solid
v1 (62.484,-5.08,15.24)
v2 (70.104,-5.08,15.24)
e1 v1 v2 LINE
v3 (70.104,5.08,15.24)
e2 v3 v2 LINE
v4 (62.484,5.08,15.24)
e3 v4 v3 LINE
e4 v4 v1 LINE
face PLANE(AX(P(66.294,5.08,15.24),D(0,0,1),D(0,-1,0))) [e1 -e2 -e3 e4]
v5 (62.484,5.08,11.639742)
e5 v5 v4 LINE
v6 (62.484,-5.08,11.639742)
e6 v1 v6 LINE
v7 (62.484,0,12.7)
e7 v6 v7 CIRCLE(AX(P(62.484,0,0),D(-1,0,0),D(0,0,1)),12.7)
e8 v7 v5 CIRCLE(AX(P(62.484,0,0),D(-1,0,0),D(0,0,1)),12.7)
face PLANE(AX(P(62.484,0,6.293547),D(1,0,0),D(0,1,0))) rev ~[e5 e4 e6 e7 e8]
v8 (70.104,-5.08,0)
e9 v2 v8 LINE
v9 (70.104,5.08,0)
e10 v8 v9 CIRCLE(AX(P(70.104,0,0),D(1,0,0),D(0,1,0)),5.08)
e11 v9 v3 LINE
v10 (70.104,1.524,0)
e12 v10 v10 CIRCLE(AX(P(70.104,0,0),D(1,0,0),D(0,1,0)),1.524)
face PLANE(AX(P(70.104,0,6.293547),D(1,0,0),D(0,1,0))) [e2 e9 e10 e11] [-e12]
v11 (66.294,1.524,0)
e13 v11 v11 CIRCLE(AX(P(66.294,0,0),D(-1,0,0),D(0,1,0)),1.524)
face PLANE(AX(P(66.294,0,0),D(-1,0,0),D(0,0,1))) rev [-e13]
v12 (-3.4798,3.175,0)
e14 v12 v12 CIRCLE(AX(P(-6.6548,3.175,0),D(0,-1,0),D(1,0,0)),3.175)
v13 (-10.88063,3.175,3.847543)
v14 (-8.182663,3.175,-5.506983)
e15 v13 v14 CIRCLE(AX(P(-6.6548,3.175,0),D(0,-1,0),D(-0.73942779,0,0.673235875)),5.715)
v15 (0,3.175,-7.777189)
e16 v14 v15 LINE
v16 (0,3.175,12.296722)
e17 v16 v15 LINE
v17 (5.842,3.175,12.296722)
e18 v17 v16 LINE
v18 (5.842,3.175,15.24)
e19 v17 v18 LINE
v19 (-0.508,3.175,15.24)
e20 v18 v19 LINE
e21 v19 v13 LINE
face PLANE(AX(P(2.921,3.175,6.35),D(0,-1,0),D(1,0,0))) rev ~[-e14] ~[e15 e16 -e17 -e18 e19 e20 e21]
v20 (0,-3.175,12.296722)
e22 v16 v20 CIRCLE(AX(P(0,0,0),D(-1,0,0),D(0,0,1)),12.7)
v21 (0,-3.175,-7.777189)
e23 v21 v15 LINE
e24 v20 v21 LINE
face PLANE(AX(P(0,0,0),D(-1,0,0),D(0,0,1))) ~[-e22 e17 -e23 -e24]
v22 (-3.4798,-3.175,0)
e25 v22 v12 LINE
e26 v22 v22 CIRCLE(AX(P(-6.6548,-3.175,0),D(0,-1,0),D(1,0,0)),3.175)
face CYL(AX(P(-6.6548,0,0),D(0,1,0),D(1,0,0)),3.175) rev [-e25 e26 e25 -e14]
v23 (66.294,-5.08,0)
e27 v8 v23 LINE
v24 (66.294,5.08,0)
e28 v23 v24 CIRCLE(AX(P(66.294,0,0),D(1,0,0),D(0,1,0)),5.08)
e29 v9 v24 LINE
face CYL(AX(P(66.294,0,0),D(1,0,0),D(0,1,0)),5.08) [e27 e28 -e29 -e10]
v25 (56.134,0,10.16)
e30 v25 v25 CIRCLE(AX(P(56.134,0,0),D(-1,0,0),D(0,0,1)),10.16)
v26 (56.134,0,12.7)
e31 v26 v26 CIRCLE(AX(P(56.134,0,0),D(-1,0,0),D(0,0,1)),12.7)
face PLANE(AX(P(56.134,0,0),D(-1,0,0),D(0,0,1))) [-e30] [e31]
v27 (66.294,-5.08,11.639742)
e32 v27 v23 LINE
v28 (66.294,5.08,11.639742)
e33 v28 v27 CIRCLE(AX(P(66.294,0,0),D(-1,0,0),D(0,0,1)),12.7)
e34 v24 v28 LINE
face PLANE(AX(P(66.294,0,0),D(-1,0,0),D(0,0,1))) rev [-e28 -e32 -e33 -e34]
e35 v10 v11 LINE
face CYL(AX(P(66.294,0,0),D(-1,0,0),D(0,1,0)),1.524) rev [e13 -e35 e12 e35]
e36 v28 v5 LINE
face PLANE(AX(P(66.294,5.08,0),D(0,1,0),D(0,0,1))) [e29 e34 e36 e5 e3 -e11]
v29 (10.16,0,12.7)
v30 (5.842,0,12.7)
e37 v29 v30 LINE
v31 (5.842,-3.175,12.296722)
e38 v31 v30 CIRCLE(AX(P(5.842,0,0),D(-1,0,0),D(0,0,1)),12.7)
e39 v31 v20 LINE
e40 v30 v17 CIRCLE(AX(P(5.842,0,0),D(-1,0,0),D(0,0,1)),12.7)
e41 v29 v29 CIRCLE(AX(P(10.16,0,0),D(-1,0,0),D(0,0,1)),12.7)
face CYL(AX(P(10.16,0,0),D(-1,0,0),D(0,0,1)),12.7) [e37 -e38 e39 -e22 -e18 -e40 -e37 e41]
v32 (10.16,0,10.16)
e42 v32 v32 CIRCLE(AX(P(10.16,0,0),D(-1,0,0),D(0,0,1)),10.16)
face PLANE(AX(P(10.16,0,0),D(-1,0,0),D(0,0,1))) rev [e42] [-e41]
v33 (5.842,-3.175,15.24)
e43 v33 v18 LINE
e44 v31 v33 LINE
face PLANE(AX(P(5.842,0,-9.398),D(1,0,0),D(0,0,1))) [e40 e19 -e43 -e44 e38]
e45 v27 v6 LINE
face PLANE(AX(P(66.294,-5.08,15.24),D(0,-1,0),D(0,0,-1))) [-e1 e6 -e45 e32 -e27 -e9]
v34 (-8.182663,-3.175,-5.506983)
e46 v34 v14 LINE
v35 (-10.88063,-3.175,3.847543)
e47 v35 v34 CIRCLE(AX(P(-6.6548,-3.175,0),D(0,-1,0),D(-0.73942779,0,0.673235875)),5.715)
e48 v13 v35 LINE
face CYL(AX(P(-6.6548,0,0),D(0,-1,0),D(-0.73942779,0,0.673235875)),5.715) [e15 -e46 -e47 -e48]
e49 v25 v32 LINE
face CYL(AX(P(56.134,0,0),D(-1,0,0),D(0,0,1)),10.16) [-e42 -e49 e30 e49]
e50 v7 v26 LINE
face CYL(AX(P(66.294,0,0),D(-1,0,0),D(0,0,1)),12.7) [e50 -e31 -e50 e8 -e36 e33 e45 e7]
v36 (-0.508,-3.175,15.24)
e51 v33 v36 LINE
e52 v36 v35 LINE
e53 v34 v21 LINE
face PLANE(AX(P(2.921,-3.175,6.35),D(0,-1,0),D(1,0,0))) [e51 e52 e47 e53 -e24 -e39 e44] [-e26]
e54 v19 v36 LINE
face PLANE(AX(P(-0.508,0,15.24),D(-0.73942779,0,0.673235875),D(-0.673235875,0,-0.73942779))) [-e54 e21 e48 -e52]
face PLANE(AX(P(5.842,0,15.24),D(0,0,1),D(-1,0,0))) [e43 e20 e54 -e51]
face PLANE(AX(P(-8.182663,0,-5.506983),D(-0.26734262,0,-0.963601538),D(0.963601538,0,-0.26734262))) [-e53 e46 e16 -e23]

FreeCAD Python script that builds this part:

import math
import FreeCAD as App
import Part
import Sketcher
Q = App.Units.Quantity

doc = App.newDocument("Part")
body = doc.addObject("PartDesign::Body", "Body")

# Sketch on XZ plane
sketch1 = body.newObject("Sketcher::SketchObject", "Sketch")
sketch1.AttachmentSupport = (doc.getObject("XZ_Plane"), [""])
sketch1.MapMode = "FlatFace"
sketch1.addGeometry(Part.LineSegment(App.Vector(66.3, 0, 0), App.Vector(66.3, 12.7, 0)), False)
sketch1.addGeometry(Part.LineSegment(App.Vector(66.3, 12.7, 0), App.Vector(56.1, 12.7, 0)), False)
sketch1.addGeometry(Part.LineSegment(App.Vector(56.1, 12.7, 0), App.Vector(56.1, 10.2, 0)), False)
sketch1.addGeometry(Part.LineSegment(App.Vector(56.1, 10.2, 0), App.Vector(10.2, 10.2, 0)), False)
sketch1.addGeometry(Part.LineSegment(App.Vector(10.2, 10.2, 0), App.Vector(10.2, 12.7, 0)), False)
sketch1.addGeometry(Part.LineSegment(App.Vector(10.2, 12.7, 0), App.Vector(0, 12.7, 0)), False)
sketch1.addGeometry(Part.LineSegment(App.Vector(0, 12.7, 0), App.Vector(0, 0, 0)), False)
sketch1.addGeometry(Part.LineSegment(App.Vector(0, 0, 0), App.Vector(66.3, 0, 0)), False)
sketch1.addConstraint(Sketcher.Constraint("Coincident", 0, 2, 1, 1))
sketch1.addConstraint(Sketcher.Constraint("Coincident", 1, 2, 2, 1))
sketch1.addConstraint(Sketcher.Constraint("Coincident", 2, 2, 3, 1))
sketch1.addConstraint(Sketcher.Constraint("Coincident", 3, 2, 4, 1))
sketch1.addConstraint(Sketcher.Constraint("Coincident", 4, 2, 5, 1))
sketch1.addConstraint(Sketcher.Constraint("Coincident", 5, 2, 6, 1))
sketch1.addConstraint(Sketcher.Constraint("Coincident", 6, 2, 7, 1))
sketch1.addConstraint(Sketcher.Constraint("Coincident", 7, 2, 0, 1))
sketch1.addConstraint(Sketcher.Constraint("Vertical", 0))
sketch1.addConstraint(Sketcher.Constraint("Horizontal", 1))
sketch1.addConstraint(Sketcher.Constraint("Vertical", 2))
sketch1.addConstraint(Sketcher.Constraint("Horizontal", 3))
sketch1.addConstraint(Sketcher.Constraint("Vertical", 4))
sketch1.addConstraint(Sketcher.Constraint("Horizontal", 5))
sketch1.addConstraint(Sketcher.Constraint("Vertical", 6))
sketch1.addConstraint(Sketcher.Constraint("Horizontal", 7))
sketch1.addConstraint(Sketcher.Constraint("Coincident", 6, 2, -1, 1))
sketch1.addConstraint(Sketcher.Constraint("Horizontal", 1, 2, 4, 2))
sketch1.addConstraint(Sketcher.Constraint("Equal", 1, 5))
sketch1.addConstraint(Sketcher.Constraint("DistanceX", 1, 2, 1, 1, Q("0.4 in")))
sketch1.addConstraint(Sketcher.Constraint("DistanceY", 0, 1, 0, 2, Q("0.5 in")))
sketch1.addConstraint(Sketcher.Constraint("DistanceY", 2, 2, 2, 1, Q("0.1 in")))
sketch1.addConstraint(Sketcher.Constraint("DistanceX", 3, 2, 3, 1, Q("1.81 in")))
revolution = body.newObject("PartDesign::Revolution", "Revolution")
revolution.Profile = sketch1
revolution.ReferenceAxis = (sketch1, ["H_Axis"])
revolution.Angle = 360

# Sketch on XZ plane
sketch2 = body.newObject("Sketcher::SketchObject", "Sketch001")
sketch2.AttachmentSupport = (doc.getObject("XZ_Plane"), [""])
sketch2.MapMode = "FlatFace"
sketch2.addGeometry(Part.LineSegment(App.Vector(5.8, 15.2, 0), App.Vector(-0.5, 15.2, 0)), False)
sketch2.addGeometry(Part.LineSegment(App.Vector(-0.5, 15.2, 0), App.Vector(-10.9, 3.8, 0)), False)
sketch2.addGeometry(Part.ArcOfCircle(Part.Circle(App.Vector(-6.7, 0, 0), App.Vector(0, 0, 1), 5.7), math.radians(138), math.radians(254)), False)
sketch2.addGeometry(Part.LineSegment(App.Vector(-8.2, -5.5, 0), App.Vector(5.8, -9.4, 0)), False)
sketch2.addGeometry(Part.LineSegment(App.Vector(5.8, -9.4, 0), App.Vector(5.8, 15.2, 0)), False)
sketch2.addGeometry(Part.Circle(App.Vector(-6.7, 0, 0), App.Vector(0, 0, 1), 3.2), False)
sketch2.addConstraint(Sketcher.Constraint("Coincident", 0, 2, 1, 1))
sketch2.addConstraint(Sketcher.Constraint("Tangent", 1, 2, 2, 1))
sketch2.addConstraint(Sketcher.Constraint("Tangent", 2, 2, 3, 1))
sketch2.addConstraint(Sketcher.Constraint("Coincident", 3, 2, 4, 1))
sketch2.addConstraint(Sketcher.Constraint("Coincident", 4, 2, 0, 1))
sketch2.addConstraint(Sketcher.Constraint("Horizontal", 0))
sketch2.addConstraint(Sketcher.Constraint("Vertical", 4))
sketch2.addConstraint(Sketcher.Constraint("Coincident", 5, 3, 2, 3))
sketch2.addConstraint(Sketcher.Constraint("PointOnObject", 2, 3, -1))
sketch2.addConstraint(Sketcher.Constraint("Diameter", 5, Q("0.25 in")))
sketch2.addConstraint(Sketcher.Constraint("Radius", 2, Q("0.225 in")))
sketch2.addConstraint(Sketcher.Constraint("DistanceX", 0, 2, 0, 1, Q("0.25 in")))
sketch2.addConstraint(Sketcher.Constraint("DistanceY", 4, 1, 4, 2, Q("0.97 in")))
sketch2.addConstraint(Sketcher.Constraint("DistanceY", -1, 1, 0, 2, Q("0.6 in")))
sketch2.addConstraint(Sketcher.Constraint("DistanceX", 0, 2, -1, 1, Q("0.02 in")))
sketch2.addConstraint(Sketcher.Constraint("DistanceX", 2, 3, -1, 1, Q("0.262 in")))
pad1 = body.newObject("PartDesign::Pad", "Pad")
pad1.Profile = sketch2
pad1.Length = Q("0.25 in")
pad1.Midplane = True

# Sketch on YZ plane
sketch3 = body.newObject("Sketcher::SketchObject", "Sketch002")
sketch3.AttachmentSupport = (doc.getObject("YZ_Plane"), [""])
sketch3.MapMode = "FlatFace"
sketch3.AttachmentOffset = App.Placement(App.Vector(0, 0, 2.61 * 25.4), App.Rotation())
sketch3.addGeometry(Part.LineSegment(App.Vector(5.1, 0, 0), App.Vector(5.1, 15.2, 0)), False)
sketch3.addGeometry(Part.LineSegment(App.Vector(5.1, 15.2, 0), App.Vector(-5.1, 15.2, 0)), False)
sketch3.addGeometry(Part.LineSegment(App.Vector(-5.1, 15.2, 0), App.Vector(-5.1, 0, 0)), False)
sketch3.addGeometry(Part.ArcOfCircle(Part.Circle(App.Vector(0, 0, 0), App.Vector(0, 0, 1), 5.1), math.radians(180), math.radians(360)), False)
sketch3.addGeometry(Part.Circle(App.Vector(0, 0, 0), App.Vector(0, 0, 1), 1.5), False)
sketch3.addConstraint(Sketcher.Constraint("Coincident", 0, 2, 1, 1))
sketch3.addConstraint(Sketcher.Constraint("Coincident", 1, 2, 2, 1))
sketch3.addConstraint(Sketcher.Constraint("Tangent", 2, 2, 3, 1))
sketch3.addConstraint(Sketcher.Constraint("Tangent", 3, 2, 0, 1))
sketch3.addConstraint(Sketcher.Constraint("Vertical", 0))
sketch3.addConstraint(Sketcher.Constraint("Horizontal", 1))
sketch3.addConstraint(Sketcher.Constraint("Vertical", 2))
sketch3.addConstraint(Sketcher.Constraint("Coincident", 3, 3, -1, 1))
sketch3.addConstraint(Sketcher.Constraint("Coincident", 4, 3, -1, 1))
sketch3.addConstraint(Sketcher.Constraint("Radius", 3, Q("0.2 in")))
sketch3.addConstraint(Sketcher.Constraint("Diameter", 4, Q("0.12 in")))
sketch3.addConstraint(Sketcher.Constraint("DistanceY", 0, 1, 0, 2, Q("0.6 in")))
pad2 = body.newObject("PartDesign::Pad", "Pad001")
pad2.Profile = sketch3
pad2.Length = Q("0.3 in")
pad2.Midplane = True

doc.recompute()
